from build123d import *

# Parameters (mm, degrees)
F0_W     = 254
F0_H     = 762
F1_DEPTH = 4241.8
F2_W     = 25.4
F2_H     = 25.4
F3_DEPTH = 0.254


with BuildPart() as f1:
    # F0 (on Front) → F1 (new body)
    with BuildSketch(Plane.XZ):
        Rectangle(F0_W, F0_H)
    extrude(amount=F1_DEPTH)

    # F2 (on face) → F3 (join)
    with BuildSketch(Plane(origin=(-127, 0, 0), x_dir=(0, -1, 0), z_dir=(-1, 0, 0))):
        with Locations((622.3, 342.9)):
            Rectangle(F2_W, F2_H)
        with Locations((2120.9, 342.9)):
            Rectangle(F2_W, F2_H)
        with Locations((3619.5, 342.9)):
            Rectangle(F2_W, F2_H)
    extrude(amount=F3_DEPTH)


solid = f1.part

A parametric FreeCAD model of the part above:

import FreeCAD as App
import Part
import Sketcher
Q = App.Units.Quantity


def add_polygon(sketch, points):
    """Adds a closed chain of lines whose ends are joined by coincident constraints."""
    first, n = sketch.GeometryCount, len(points)
    for a, b in zip(points, points[1:] + points[:1]):
        sketch.addGeometry(Part.LineSegment(App.Vector(*a, 0), App.Vector(*b, 0)), False)
    for i in range(n):
        sketch.addConstraint(Sketcher.Constraint("Coincident", first + i, 2, first + (i + 1) % n, 1))

doc = App.newDocument("Part")
params = doc.addObject("Spreadsheet::Sheet", "Params")
for row, (alias, value) in enumerate([
    ("sketch1_width", "10 in"),
    ("sketch1_height", "30 in"),
    ("pad1_length", "167 in"),
    ("sketch2_width", "1 in"),
    ("pad2_length", "0.01 in"),
], start=1):
    params.set(f"A{row}", alias)
    params.set(f"B{row}", "=" + value)
    params.setAlias(f"B{row}", alias)

body = doc.addObject("PartDesign::Body", "Body")

# Sketch on XZ plane
sketch1 = doc.addObject("Sketcher::SketchObject", "Sketch")
body.addObject(sketch1)
sketch1.AttachmentSupport = (doc.XZ_Plane, [""])
sketch1.MapMode = "FlatFace"
add_polygon(sketch1, [(-127, 381), (-127, -381), (127, -381), (127, 381)])  # lines 0-3
sketch1.addConstraint([
    Sketcher.Constraint("Vertical", 0),
    Sketcher.Constraint("Horizontal", 1),
    Sketcher.Constraint("Vertical", 2),
    Sketcher.Constraint("Horizontal", 3),
    Sketcher.Constraint("Symmetric", 0, 2, 2, 2, -1, 1),
    Sketcher.Constraint("DistanceX", 1, 1, 1, 2, Q("10 in")),
    Sketcher.Constraint("DistanceY", 0, 2, 0, 1, Q("30 in")),
])
sketch1.setExpression("Constraints[9]", "Params.sketch1_width")
sketch1.setExpression("Constraints[10]", "Params.sketch1_height")
pad1 = doc.addObject("PartDesign::Pad", "Pad")
body.addObject(pad1)
pad1.Profile = sketch1
pad1.setExpression("Length", "Params.pad1_length")

# Sketch on YZ plane
sketch2 = doc.addObject("Sketcher::SketchObject", "Sketch001")
body.addObject(sketch2)
sketch2.AttachmentSupport = (doc.YZ_Plane, [""])
sketch2.MapMode = "FlatFace"
sketch2.AttachmentOffset = App.Placement(App.Vector(0, 0, -5 * 25.4), App.Rotation())
add_polygon(sketch2, [(-610, 356), (-610, 330), (-635, 330), (-635, 356)])  # lines 0-3
add_polygon(sketch2, [(-2108, 356), (-2108, 330), (-2134, 330), (-2134, 356)])  # lines 4-7
add_polygon(sketch2, [(-3607, 356), (-3607, 330), (-3632, 330), (-3632, 356)])  # lines 8-11
sketch2.addConstraint([
    Sketcher.Constraint("Vertical", 0),
    Sketcher.Constraint("Horizontal", 1),
    Sketcher.Constraint("Vertical", 2),
    Sketcher.Constraint("Horizontal", 3),
    Sketcher.Constraint("Vertical", 4),
    Sketcher.Constraint("Horizontal", 5),
    Sketcher.Constraint("Vertical", 6),
    Sketcher.Constraint("Horizontal", 7),
    Sketcher.Constraint("Vertical", 8),
    Sketcher.Constraint("Horizontal", 9),
    Sketcher.Constraint("Vertical", 10),
    Sketcher.Constraint("Horizontal", 11),
    Sketcher.Constraint("Horizontal", 1, 2, 4, 2),
    Sketcher.Constraint("Horizontal", 3, 2, 6, 2),
    Sketcher.Constraint("Horizontal", 5, 2, 8, 2),
    Sketcher.Constraint("Horizontal", 7, 2, 10, 2),
    Sketcher.Constraint("Equal", 3, 5),
    Sketcher.Constraint("Equal", 7, 9),
    Sketcher.Constraint("Equal", 11, 0),
    Sketcher.Constraint("DistanceX", 1, 2, 1, 1, Q("1 in")),
    Sketcher.Constraint("DistanceX", 0, 2, -1, 1, Q("24 in")),
    Sketcher.Constraint("DistanceY", -1, 1, 0, 2, Q("13 in")),
    Sketcher.Constraint("DistanceX", 4, 2, -1, 1, Q("83 in")),
    Sketcher.Constraint("DistanceX", 8, 2, -1, 1, Q("142 in")),
])
sketch2.setExpression("Constraints[31]", "Params.sketch2_width")
pad2 = doc.addObject("PartDesign::Pad", "Pad001")
body.addObject(pad2)
pad2.Profile = sketch2
pad2.setExpression("Length", "Params.pad2_length")
pad2.Reversed = True

doc.recompute()
